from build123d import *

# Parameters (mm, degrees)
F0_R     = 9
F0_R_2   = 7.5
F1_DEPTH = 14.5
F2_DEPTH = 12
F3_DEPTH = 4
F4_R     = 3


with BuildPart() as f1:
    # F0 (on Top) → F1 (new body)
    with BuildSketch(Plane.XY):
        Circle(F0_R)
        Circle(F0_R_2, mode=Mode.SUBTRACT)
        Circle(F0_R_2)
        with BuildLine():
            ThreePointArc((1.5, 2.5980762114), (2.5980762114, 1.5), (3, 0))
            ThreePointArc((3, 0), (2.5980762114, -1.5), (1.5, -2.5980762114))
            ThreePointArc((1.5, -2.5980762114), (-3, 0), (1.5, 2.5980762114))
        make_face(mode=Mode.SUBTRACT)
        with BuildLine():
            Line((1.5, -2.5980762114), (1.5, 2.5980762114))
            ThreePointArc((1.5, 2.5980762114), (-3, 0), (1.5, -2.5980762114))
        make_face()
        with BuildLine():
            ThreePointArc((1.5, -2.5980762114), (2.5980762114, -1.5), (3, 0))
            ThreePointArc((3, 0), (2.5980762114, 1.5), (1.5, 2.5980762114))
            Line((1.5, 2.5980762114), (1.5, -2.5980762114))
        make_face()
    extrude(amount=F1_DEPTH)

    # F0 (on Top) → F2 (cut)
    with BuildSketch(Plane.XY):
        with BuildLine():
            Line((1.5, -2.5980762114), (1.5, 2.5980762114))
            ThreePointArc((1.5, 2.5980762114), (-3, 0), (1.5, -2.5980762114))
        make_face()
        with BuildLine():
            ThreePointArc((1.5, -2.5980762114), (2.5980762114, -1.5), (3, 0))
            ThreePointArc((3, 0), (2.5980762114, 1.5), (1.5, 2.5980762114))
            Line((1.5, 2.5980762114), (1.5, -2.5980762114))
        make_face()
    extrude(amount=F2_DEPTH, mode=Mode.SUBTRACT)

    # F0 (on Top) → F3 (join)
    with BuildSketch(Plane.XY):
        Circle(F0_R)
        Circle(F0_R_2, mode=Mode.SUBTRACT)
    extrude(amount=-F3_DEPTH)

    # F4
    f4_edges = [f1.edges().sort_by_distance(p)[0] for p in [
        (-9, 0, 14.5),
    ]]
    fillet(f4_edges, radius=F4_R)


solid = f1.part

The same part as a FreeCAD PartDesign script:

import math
import FreeCAD as App
import Part
import Sketcher
from FreeCAD import Vector


def edges_at(feature, points):
    """Names of the edges that pass closest to the given points."""
    edges = feature.Shape.Edges
    near = lambda p: min(range(len(edges)), key=lambda i: edges[i].distToShape(Part.Vertex(*p))[0])
    return sorted({f"Edge{near(p) + 1}" for p in points})

doc = App.newDocument("Part")
body = doc.addObject("PartDesign::Body", "Body")

sketch1 = body.newObject("Sketcher::SketchObject", "Sketch")
sketch1.AttachmentSupport = (doc.getObject("XY_Plane"), [""])
sketch1.MapMode = "FlatFace"
sketch1.addGeometry(Part.Circle(Vector(0, 0, 0), Vector(0, 0, 1), 9), False)
sketch1.addConstraint(Sketcher.Constraint("Coincident", 0, 3, -1, 1))
sketch1.addConstraint(Sketcher.Constraint("Diameter", 0, 18.0))
pad1 = body.newObject("PartDesign::Pad", "Pad")
pad1.Profile = sketch1
pad1.Length = 14.5

sketch2 = body.newObject("Sketcher::SketchObject", "Sketch001")
sketch2.AttachmentSupport = (doc.getObject("XY_Plane"), [""])
sketch2.MapMode = "FlatFace"
sketch2.addGeometry(Part.ArcOfCircle(Part.Circle(Vector(0, 0, 0), Vector(0, 0, 1), 3), math.radians(60), math.radians(300)), False)
sketch2.addGeometry(Part.ArcOfCircle(Part.Circle(Vector(0, 0, 0), Vector(0, 0, 1), 3), math.radians(-60), math.radians(0)), False)
sketch2.addGeometry(Part.ArcOfCircle(Part.Circle(Vector(0, 0, 0), Vector(0, 0, 1), 3), math.radians(0), math.radians(60)), False)
sketch2.addConstraint(Sketcher.Constraint("Tangent", 0, 2, 1, 1))
sketch2.addConstraint(Sketcher.Constraint("Tangent", 1, 2, 2, 1))
sketch2.addConstraint(Sketcher.Constraint("Tangent", 2, 2, 0, 1))
sketch2.addConstraint(Sketcher.Constraint("Coincident", 0, 3, -1, 1))
sketch2.addConstraint(Sketcher.Constraint("PointOnObject", 1, 2, -1))
sketch2.addConstraint(Sketcher.Constraint("Vertical", 0, 2, 2, 2))
sketch2.addConstraint(Sketcher.Constraint("Radius", 0, 3.0))
sketch2.addConstraint(Sketcher.Constraint("DistanceX", -1, 1, 0, 2, 1.5))
pocket1 = body.newObject("PartDesign::Pocket", "Pocket")
pocket1.Profile = sketch2
pocket1.Length = 12
pocket1.Reversed = True

sketch3 = body.newObject("Sketcher::SketchObject", "Sketch002")
sketch3.AttachmentSupport = (doc.getObject("XY_Plane"), [""])
sketch3.MapMode = "FlatFace"
sketch3.addGeometry(Part.Circle(Vector(0, 0, 0), Vector(0, 0, 1), 9), False)
sketch3.addGeometry(Part.Circle(Vector(0, 0, 0), Vector(0, 0, 1), 8), False)
sketch3.addConstraint(Sketcher.Constraint("Coincident", 0, 3, -1, 1))
sketch3.addConstraint(Sketcher.Constraint("Coincident", 1, 3, -1, 1))
sketch3.addConstraint(Sketcher.Constraint("Diameter", 0, 18.0))
sketch3.addConstraint(Sketcher.Constraint("Diameter", 1, 15.0))
pad2 = body.newObject("PartDesign::Pad", "Pad001")
pad2.Profile = sketch3
pad2.Length = 4
pad2.Reversed = True
doc.recompute()

fillet = body.newObject("PartDesign::Fillet", "Fillet")
fillet.Base = (pad2, edges_at(pad2, [(-9, 0, 14.5)]))
fillet.Radius = 3

doc.recompute()
